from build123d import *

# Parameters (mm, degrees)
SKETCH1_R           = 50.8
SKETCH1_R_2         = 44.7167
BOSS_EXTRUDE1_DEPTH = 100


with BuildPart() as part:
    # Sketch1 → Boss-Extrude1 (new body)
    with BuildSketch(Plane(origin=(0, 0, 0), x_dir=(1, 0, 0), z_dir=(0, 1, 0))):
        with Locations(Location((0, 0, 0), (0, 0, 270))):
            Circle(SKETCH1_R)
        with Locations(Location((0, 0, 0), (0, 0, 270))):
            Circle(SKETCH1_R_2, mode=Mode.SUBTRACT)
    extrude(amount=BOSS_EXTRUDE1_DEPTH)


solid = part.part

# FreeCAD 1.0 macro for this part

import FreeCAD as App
import Part
import Sketcher
Q = App.Units.Quantity

doc = App.newDocument("Part")
body = doc.addObject("PartDesign::Body", "Body")

# Sketch on XZ plane
sketch1 = body.newObject("Sketcher::SketchObject", "Sketch")
sketch1.AttachmentSupport = (doc.getObject("XZ_Plane"), [""])
sketch1.MapMode = "FlatFace"
sketch1.addGeometry(Part.Circle(App.Vector(0, 0, 0), App.Vector(0, 0, 1), 51), False)
sketch1.addGeometry(Part.Circle(App.Vector(0, 0, 0), App.Vector(0, 0, 1), 45), False)
sketch1.addConstraint(Sketcher.Constraint("Coincident", 0, 3, -1, 1))
sketch1.addConstraint(Sketcher.Constraint("Coincident", 1, 3, -1, 1))
sketch1.addConstraint(Sketcher.Constraint("Diameter", 0, Q("4 in")))
sketch1.addConstraint(Sketcher.Constraint("Diameter", 1, Q("3.521 in")))
pad1 = body.newObject("PartDesign::Pad", "Pad")
pad1.Profile = sketch1
pad1.Length = 100
pad1.Reversed = True

doc.recompute()
